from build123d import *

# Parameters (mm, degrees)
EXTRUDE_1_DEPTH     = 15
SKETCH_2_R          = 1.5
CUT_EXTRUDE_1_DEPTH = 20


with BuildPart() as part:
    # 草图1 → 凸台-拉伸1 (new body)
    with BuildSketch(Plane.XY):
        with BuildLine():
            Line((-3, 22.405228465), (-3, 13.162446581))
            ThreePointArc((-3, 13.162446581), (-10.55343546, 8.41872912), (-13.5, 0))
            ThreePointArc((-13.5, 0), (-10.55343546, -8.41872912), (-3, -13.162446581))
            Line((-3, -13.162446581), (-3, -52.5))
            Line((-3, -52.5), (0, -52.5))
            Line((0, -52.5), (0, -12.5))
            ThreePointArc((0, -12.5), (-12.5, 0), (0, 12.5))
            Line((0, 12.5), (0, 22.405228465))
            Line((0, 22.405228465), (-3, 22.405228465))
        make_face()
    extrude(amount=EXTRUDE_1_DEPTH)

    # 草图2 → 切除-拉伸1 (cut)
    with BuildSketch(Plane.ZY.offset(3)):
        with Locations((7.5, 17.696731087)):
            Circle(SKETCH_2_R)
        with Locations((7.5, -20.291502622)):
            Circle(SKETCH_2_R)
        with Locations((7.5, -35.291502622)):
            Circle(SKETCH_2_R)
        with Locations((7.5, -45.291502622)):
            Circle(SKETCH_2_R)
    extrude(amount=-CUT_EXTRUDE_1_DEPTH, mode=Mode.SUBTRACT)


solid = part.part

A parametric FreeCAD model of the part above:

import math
import FreeCAD as App
import Part
import Sketcher
from FreeCAD import Vector
Q = App.Units.Quantity

doc = App.newDocument("Part")
params = doc.addObject("Spreadsheet::Sheet", "Params")
for row, (alias, value) in enumerate([
    ("sketch1_radius", "13.5 mm"),
    ("sketch1_radius2", "12.5 mm"),
    ("sketch1_width", "3 mm"),
    ("sketch1_height", "40 mm"),
    ("pad1_length", "15 mm"),
    ("sketch2_diameter", "3 mm"),
    ("pocket1_length", "20 mm"),
], start=1):
    params.set(f"A{row}", alias)
    params.set(f"B{row}", "=" + value)
    params.setAlias(f"B{row}", alias)

body = doc.addObject("PartDesign::Body", "Body")

sketch1 = doc.addObject("Sketcher::SketchObject", "Sketch")
body.addObject(sketch1)
sketch1.AttachmentSupport = (doc.XY_Plane, [""])
sketch1.MapMode = "FlatFace"
sketch1.addGeometry(Part.LineSegment(Vector(-3, 22.405228, 0), Vector(-3, 13.162447, 0)), False)
sketch1.addGeometry(Part.ArcOfCircle(Part.Circle(Vector(0, 0, 0), Vector(0, 0, 1), 13.5), math.radians(102.839588), math.radians(180)), False)
sketch1.addGeometry(Part.ArcOfCircle(Part.Circle(Vector(0, 0, 0), Vector(0, 0, 1), 13.5), math.radians(180), math.radians(257.160412)), False)
sketch1.addGeometry(Part.LineSegment(Vector(-3, -13.162447, 0), Vector(-3, -52.5, 0)), False)
sketch1.addGeometry(Part.LineSegment(Vector(-3, -52.5, 0), Vector(0, -52.5, 0)), False)
sketch1.addGeometry(Part.LineSegment(Vector(0, -52.5, 0), Vector(0, -12.5, 0)), False)
sketch1.addGeometry(Part.ArcOfCircle(Part.Circle(Vector(0, 0, 0), Vector(0, 0, 1), 12.5), math.radians(90), math.radians(270)), False)
sketch1.addGeometry(Part.LineSegment(Vector(0, 12.5, 0), Vector(0, 22.405228, 0)), False)
sketch1.addGeometry(Part.LineSegment(Vector(0, 22.405228, 0), Vector(-3, 22.405228, 0)), False)
sketch1.addConstraint(Sketcher.Constraint("Coincident", 0, 2, 1, 1))
sketch1.addConstraint(Sketcher.Constraint("Tangent", 1, 2, 2, 1))
sketch1.addConstraint(Sketcher.Constraint("Coincident", 2, 2, 3, 1))
sketch1.addConstraint(Sketcher.Constraint("Coincident", 3, 2, 4, 1))
sketch1.addConstraint(Sketcher.Constraint("Coincident", 4, 2, 5, 1))
sketch1.addConstraint(Sketcher.Constraint("Coincident", 5, 2, 6, 2))
sketch1.addConstraint(Sketcher.Constraint("Coincident", 6, 1, 7, 1))
sketch1.addConstraint(Sketcher.Constraint("Coincident", 7, 2, 8, 1))
sketch1.addConstraint(Sketcher.Constraint("Coincident", 8, 2, 0, 1))
sketch1.addConstraint(Sketcher.Constraint("Vertical", 0))
sketch1.addConstraint(Sketcher.Constraint("Vertical", 3))
sketch1.addConstraint(Sketcher.Constraint("Horizontal", 4))
sketch1.addConstraint(Sketcher.Constraint("Vertical", 5))
sketch1.addConstraint(Sketcher.Constraint("Vertical", 7))
sketch1.addConstraint(Sketcher.Constraint("Horizontal", 8))
sketch1.addConstraint(Sketcher.Constraint("Coincident", 1, 3, -1, 1))
sketch1.addConstraint(Sketcher.Constraint("Coincident", 6, 3, -1, 1))
sketch1.addConstraint(Sketcher.Constraint("Equal", 1, 2))
sketch1.addConstraint(Sketcher.Constraint("PointOnObject", 1, 2, -1))
sketch1.addConstraint(Sketcher.Constraint("PointOnObject", 4, 2, -2))
sketch1.addConstraint(Sketcher.Constraint("PointOnObject", 6, 1, -2))
sketch1.addConstraint(Sketcher.Constraint("Vertical", 0, 2, 2, 2))
sketch1.addConstraint(Sketcher.Constraint("Radius", 1, Q("13.5 mm")))
sketch1.addConstraint(Sketcher.Constraint("Radius", 6, Q("12.5 mm")))
sketch1.addConstraint(Sketcher.Constraint("DistanceX", 4, 1, 4, 2, Q("3 mm")))
sketch1.addConstraint(Sketcher.Constraint("DistanceY", 5, 1, 5, 2, Q("40 mm")))
sketch1.addConstraint(Sketcher.Constraint("DistanceY", 0, 2, 0, 1, Q("9.242782 mm")))
sketch1.setExpression("Constraints[22]", "Params.sketch1_radius")
sketch1.setExpression("Constraints[23]", "Params.sketch1_radius2")
sketch1.setExpression("Constraints[24]", "Params.sketch1_width")
sketch1.setExpression("Constraints[25]", "Params.sketch1_height")
pad1 = doc.addObject("PartDesign::Pad", "Pad")
body.addObject(pad1)
pad1.Profile = sketch1
pad1.setExpression("Length", "Params.pad1_length")

sketch2 = doc.addObject("Sketcher::SketchObject", "Sketch001")
body.addObject(sketch2)
sketch2.AttachmentSupport = (doc.YZ_Plane, [""])
sketch2.MapMode = "FlatFace"
sketch2.AttachmentOffset = App.Placement(Vector(0, 0, -3), App.Rotation())
sketch2.addGeometry(Part.Circle(Vector(17.696731, 7.5, 0), Vector(0, 0, 1), 1.5), False)
sketch2.addGeometry(Part.Circle(Vector(-20.291503, 7.5, 0), Vector(0, 0, 1), 1.5), False)
sketch2.addGeometry(Part.Circle(Vector(-35.291503, 7.5, 0), Vector(0, 0, 1), 1.5), False)
sketch2.addGeometry(Part.Circle(Vector(-45.291503, 7.5, 0), Vector(0, 0, 1), 1.5), False)
sketch2.addConstraint(Sketcher.Constraint("Equal", 0, 1))
sketch2.addConstraint(Sketcher.Constraint("Equal", 1, 2))
sketch2.addConstraint(Sketcher.Constraint("Equal", 2, 3))
sketch2.addConstraint(Sketcher.Constraint("Horizontal", 0, 3, 1, 3))
sketch2.addConstraint(Sketcher.Constraint("Horizontal", 1, 3, 2, 3))
sketch2.addConstraint(Sketcher.Constraint("Horizontal", 2, 3, 3, 3))
sketch2.addConstraint(Sketcher.Constraint("Diameter", 0, Q("3 mm")))
sketch2.addConstraint(Sketcher.Constraint("DistanceX", 2, 3, 1, 3, Q("15 mm")))
sketch2.addConstraint(Sketcher.Constraint("DistanceX", 3, 3, 2, 3, Q("10 mm")))
sketch2.addConstraint(Sketcher.Constraint("DistanceY", -1, 1, 0, 3, Q("7.5 mm")))
sketch2.addConstraint(Sketcher.Constraint("DistanceX", -1, 1, 0, 3, Q("17.696731 mm")))
sketch2.addConstraint(Sketcher.Constraint("DistanceX", 1, 3, -1, 1, Q("20.291503 mm")))
sketch2.setExpression("Constraints[6]", "Params.sketch2_diameter")
pocket1 = doc.addObject("PartDesign::Pocket", "Pocket")
body.addObject(pocket1)
pocket1.Profile = sketch2
pocket1.setExpression("Length", "Params.pocket1_length")
pocket1.Reversed = True

doc.recompute()
